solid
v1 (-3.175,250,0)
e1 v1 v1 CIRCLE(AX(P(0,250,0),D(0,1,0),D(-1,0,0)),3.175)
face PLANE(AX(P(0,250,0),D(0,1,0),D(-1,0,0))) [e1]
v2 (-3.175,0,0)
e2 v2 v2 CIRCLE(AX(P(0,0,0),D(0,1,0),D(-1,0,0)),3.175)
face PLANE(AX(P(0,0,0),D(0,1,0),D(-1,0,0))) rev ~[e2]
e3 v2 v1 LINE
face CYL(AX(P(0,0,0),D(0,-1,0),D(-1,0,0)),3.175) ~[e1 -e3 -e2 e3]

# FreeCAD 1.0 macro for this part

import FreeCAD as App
import Part
import Sketcher

V = App.Vector

doc = App.newDocument("Part")
body = doc.addObject("PartDesign::Body", "Body")

sketch1 = body.newObject("Sketcher::SketchObject", "Sketch")
sketch1.AttachmentSupport = (doc.getObject("XZ_Plane"), [""])
sketch1.MapMode = "FlatFace"
sketch1.addGeometry(Part.Circle(V(0, 0, 0), V(0, 0, 1), 3.175), False)
sketch1.addConstraint(Sketcher.Constraint("Coincident", 0, 3, -1, 1))
sketch1.addConstraint(Sketcher.Constraint("Diameter", 0, 6.35))
pad1 = body.newObject("PartDesign::Pad", "Pad")
pad1.Profile = sketch1
pad1.Length = 250
pad1.Reversed = True

doc.recompute()
